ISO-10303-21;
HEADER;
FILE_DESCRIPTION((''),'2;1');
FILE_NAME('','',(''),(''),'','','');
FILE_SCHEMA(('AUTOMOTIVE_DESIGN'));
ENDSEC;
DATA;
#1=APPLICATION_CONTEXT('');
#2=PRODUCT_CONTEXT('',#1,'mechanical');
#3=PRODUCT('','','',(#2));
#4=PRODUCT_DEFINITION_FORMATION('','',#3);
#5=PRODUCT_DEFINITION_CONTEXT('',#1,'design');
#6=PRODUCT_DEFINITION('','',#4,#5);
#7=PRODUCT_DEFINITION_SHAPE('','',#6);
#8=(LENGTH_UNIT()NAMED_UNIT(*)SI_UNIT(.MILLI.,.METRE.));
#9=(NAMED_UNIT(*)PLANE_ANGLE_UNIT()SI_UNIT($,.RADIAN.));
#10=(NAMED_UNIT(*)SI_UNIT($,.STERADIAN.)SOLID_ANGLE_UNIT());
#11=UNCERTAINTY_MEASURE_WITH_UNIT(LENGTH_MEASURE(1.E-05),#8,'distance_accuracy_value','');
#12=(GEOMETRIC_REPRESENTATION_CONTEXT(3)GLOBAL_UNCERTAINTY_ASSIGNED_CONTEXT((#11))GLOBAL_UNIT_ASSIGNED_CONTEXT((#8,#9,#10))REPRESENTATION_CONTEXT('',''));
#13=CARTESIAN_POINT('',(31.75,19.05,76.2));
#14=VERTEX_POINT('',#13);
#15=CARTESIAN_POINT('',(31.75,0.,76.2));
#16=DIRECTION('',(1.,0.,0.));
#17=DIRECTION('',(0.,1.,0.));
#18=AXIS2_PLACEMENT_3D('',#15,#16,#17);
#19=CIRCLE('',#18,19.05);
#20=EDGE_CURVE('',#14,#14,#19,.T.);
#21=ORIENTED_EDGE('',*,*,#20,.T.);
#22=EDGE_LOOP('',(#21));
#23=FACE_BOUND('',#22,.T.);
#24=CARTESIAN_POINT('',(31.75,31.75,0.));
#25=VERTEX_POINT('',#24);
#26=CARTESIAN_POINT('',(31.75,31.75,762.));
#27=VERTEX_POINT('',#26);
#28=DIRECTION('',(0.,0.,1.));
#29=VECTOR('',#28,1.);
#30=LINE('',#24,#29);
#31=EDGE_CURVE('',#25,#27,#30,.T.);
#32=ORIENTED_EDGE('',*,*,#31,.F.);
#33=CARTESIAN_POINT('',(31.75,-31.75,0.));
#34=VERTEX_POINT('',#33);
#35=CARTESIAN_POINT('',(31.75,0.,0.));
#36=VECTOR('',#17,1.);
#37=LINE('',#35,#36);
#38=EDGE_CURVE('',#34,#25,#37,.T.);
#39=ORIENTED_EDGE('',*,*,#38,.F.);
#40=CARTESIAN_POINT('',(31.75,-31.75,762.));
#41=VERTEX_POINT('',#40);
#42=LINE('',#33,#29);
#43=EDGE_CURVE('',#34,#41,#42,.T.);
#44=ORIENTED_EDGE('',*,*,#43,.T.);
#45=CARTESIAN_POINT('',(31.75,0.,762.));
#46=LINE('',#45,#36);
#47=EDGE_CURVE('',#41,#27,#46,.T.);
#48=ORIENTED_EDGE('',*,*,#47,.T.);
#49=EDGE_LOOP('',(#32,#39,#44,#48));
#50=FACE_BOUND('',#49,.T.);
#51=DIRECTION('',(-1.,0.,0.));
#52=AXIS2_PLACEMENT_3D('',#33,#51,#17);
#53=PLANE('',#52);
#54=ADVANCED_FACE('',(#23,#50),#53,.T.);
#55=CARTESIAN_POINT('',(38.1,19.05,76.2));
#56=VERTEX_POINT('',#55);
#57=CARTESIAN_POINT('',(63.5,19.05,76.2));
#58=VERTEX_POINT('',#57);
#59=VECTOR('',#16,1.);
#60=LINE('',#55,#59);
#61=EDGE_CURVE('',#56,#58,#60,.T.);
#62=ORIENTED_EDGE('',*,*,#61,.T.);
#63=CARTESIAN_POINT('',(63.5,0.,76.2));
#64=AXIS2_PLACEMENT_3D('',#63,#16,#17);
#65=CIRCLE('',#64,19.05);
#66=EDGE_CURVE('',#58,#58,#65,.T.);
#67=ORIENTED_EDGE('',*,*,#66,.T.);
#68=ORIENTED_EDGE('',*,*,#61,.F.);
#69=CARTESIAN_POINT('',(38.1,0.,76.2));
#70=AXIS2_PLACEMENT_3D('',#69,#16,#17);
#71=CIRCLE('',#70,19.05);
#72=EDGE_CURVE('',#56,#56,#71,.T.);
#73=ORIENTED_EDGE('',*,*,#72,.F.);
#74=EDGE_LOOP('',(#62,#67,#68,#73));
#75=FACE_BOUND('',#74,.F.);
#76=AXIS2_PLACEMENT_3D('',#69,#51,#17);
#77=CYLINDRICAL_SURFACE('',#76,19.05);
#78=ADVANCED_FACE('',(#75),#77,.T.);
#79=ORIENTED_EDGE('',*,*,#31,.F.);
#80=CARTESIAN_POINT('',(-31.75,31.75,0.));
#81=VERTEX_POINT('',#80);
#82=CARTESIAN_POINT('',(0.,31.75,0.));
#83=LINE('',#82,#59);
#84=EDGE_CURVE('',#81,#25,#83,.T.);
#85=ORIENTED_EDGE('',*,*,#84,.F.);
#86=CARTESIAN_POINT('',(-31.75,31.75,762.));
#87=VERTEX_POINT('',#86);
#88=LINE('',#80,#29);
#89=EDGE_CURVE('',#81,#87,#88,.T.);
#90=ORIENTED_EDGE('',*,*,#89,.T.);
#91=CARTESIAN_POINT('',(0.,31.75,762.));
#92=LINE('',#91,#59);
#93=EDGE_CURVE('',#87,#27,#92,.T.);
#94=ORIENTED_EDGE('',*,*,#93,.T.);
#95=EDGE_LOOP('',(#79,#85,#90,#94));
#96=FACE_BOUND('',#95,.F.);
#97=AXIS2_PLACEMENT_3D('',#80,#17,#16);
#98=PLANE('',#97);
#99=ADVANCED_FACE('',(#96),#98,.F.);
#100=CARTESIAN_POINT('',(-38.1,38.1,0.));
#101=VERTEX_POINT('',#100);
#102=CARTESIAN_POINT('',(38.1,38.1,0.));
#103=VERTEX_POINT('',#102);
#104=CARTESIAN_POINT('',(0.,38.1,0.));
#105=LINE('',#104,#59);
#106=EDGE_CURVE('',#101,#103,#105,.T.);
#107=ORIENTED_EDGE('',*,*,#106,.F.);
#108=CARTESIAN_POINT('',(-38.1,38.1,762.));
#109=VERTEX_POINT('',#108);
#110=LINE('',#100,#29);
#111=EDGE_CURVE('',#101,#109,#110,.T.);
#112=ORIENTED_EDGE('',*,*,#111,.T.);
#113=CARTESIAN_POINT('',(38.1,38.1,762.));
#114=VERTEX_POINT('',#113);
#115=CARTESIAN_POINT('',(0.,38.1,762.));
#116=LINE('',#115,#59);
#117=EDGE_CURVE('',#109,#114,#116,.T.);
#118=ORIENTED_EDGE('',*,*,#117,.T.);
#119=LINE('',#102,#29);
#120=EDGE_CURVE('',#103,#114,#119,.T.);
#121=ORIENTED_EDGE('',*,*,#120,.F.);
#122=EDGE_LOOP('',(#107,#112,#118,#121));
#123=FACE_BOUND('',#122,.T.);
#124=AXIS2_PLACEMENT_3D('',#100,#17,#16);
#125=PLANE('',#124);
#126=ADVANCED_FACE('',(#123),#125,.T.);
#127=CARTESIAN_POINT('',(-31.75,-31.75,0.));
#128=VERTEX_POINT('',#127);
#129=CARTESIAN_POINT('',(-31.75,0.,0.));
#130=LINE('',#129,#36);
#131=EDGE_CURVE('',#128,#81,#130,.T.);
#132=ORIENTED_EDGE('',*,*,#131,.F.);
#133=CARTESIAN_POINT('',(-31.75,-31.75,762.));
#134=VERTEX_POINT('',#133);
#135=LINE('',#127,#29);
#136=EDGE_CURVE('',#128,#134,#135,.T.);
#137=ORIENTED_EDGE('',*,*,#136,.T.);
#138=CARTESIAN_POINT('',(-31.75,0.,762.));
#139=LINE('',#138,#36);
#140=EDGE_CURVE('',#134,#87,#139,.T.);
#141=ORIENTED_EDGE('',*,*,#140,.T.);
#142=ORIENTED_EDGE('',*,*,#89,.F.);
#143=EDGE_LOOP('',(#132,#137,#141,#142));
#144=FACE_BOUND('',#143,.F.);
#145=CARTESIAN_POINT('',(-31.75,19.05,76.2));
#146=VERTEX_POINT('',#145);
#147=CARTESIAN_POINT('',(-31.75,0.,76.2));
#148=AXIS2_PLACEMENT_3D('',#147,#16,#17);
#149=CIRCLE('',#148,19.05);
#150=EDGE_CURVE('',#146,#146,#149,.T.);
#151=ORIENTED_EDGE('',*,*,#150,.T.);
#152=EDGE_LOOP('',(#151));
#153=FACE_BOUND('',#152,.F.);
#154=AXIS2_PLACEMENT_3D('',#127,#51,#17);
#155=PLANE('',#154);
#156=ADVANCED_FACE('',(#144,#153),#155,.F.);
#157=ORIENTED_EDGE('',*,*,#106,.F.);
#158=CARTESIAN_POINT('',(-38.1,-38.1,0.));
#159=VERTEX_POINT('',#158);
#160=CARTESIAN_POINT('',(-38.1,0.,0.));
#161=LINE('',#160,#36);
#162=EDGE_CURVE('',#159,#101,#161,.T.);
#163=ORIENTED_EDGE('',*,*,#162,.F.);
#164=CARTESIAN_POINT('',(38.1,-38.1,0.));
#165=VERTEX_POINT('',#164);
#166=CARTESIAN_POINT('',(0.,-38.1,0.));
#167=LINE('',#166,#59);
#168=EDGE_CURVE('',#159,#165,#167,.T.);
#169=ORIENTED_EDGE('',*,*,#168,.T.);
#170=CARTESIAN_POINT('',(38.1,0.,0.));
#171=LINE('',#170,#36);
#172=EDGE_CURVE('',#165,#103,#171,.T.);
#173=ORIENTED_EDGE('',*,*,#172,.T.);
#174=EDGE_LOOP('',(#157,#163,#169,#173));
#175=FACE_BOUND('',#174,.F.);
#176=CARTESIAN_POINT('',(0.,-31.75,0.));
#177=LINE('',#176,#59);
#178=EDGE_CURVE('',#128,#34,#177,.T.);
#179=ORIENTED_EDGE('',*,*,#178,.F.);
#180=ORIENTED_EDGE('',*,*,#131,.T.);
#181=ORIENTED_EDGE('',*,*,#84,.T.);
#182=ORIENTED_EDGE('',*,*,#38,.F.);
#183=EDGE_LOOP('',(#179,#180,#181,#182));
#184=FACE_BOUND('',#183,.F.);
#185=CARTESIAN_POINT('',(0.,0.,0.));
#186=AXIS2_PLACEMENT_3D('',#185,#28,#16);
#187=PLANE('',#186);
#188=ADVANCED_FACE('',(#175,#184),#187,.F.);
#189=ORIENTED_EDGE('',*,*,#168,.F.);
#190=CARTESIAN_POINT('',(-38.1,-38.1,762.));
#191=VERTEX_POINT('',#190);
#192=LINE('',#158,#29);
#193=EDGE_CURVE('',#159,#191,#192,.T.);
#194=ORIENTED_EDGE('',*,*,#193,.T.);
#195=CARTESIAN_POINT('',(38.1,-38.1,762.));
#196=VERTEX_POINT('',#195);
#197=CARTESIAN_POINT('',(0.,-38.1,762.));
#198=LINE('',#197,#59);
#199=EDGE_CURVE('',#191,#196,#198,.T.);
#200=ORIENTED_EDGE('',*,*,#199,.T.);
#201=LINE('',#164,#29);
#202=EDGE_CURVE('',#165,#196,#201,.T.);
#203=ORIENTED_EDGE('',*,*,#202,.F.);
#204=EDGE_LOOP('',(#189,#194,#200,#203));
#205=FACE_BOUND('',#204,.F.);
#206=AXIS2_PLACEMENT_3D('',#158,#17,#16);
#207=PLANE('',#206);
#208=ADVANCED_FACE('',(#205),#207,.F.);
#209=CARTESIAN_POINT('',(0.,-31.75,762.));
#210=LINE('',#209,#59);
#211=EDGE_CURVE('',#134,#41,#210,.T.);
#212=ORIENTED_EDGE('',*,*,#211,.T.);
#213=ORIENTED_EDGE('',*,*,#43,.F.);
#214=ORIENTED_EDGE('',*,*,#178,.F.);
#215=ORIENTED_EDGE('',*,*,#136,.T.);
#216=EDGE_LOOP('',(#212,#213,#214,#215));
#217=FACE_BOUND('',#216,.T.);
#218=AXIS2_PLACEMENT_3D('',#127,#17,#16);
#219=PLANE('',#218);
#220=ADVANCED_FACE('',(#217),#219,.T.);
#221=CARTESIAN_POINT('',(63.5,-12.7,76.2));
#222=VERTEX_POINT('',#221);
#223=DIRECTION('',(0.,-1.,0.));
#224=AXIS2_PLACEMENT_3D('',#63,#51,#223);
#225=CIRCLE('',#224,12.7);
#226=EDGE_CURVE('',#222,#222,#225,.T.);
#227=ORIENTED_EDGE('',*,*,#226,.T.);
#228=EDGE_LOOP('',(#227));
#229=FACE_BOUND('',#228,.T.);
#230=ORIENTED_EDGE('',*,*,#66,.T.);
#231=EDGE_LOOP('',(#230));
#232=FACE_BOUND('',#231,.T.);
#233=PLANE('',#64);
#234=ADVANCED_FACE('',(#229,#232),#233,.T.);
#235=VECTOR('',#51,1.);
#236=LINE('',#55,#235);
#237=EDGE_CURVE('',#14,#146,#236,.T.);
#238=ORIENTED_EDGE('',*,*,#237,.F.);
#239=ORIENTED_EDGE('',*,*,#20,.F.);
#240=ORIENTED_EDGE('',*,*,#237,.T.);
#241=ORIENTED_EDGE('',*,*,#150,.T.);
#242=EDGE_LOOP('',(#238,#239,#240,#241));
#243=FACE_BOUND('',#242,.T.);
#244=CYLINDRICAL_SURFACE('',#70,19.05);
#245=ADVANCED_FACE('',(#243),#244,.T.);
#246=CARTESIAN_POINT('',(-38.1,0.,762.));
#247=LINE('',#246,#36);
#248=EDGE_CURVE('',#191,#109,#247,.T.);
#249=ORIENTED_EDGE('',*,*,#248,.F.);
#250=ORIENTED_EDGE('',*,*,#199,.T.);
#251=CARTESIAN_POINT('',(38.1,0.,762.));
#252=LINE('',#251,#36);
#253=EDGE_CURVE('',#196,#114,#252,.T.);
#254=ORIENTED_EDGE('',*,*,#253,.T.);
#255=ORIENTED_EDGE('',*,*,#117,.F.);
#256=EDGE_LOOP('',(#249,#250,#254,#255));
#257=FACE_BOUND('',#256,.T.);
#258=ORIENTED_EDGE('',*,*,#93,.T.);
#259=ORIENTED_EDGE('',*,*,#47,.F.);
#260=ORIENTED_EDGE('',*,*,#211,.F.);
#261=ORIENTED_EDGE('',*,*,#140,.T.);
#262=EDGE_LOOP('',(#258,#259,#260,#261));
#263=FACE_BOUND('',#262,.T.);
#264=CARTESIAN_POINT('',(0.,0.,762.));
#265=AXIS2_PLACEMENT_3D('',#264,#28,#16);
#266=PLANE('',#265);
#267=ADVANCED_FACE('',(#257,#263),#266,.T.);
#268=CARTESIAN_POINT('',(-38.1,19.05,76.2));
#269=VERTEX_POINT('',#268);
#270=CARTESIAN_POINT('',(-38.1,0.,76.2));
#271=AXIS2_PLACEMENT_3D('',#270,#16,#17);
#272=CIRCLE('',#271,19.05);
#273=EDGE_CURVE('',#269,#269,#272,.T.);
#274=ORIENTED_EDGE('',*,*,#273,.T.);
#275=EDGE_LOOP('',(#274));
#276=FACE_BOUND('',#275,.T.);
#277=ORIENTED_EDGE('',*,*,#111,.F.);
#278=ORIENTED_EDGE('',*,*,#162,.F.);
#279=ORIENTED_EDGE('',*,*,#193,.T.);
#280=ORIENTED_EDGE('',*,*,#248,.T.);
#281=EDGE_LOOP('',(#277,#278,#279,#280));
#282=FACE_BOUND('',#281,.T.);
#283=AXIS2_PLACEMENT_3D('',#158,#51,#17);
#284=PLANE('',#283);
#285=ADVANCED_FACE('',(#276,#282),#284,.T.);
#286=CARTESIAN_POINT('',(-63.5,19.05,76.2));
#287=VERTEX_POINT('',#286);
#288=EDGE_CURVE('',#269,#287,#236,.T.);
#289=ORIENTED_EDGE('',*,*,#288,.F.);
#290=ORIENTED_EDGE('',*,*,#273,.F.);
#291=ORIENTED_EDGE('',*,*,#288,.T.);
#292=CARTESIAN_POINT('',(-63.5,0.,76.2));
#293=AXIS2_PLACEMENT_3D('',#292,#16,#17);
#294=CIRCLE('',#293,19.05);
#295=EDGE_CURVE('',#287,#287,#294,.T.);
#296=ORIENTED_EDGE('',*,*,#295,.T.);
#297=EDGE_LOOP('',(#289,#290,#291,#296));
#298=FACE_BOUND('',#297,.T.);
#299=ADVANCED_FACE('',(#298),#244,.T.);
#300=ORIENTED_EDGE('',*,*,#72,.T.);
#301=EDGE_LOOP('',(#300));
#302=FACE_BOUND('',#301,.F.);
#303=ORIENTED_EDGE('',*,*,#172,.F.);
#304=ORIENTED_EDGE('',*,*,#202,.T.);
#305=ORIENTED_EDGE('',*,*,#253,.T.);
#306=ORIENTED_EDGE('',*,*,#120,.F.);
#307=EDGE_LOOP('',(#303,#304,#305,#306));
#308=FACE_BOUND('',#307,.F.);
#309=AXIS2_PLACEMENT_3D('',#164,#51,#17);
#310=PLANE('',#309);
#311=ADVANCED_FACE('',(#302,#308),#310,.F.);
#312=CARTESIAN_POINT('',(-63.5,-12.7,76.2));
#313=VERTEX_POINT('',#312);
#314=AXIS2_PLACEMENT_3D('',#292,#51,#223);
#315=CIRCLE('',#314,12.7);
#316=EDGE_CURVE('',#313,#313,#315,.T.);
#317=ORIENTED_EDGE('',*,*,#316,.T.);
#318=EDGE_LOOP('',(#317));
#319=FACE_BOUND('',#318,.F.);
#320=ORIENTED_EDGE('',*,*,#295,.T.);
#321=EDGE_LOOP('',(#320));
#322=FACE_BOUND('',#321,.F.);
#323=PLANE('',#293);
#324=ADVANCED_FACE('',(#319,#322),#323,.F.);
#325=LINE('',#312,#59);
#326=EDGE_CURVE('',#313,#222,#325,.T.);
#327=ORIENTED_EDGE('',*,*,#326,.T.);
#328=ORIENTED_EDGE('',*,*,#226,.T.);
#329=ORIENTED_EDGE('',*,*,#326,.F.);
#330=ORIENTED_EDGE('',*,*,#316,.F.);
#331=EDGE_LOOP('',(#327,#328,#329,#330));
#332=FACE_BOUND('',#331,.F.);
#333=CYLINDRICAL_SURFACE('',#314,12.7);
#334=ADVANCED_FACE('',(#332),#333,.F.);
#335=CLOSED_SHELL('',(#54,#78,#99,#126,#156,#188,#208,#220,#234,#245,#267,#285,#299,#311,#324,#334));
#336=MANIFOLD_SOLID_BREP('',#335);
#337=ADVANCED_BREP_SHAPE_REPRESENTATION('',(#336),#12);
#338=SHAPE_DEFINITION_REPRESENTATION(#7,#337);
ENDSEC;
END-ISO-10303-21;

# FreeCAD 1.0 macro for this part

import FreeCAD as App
import Part
import Sketcher
from FreeCAD import Vector
Q = App.Units.Quantity


def add_polygon(sketch, points):
    """Adds a closed chain of lines whose ends are joined by coincident constraints."""
    first, n = sketch.GeometryCount, len(points)
    for a, b in zip(points, points[1:] + points[:1]):
        sketch.addGeometry(Part.LineSegment(App.Vector(*a, 0), App.Vector(*b, 0)), False)
    for i in range(n):
        sketch.addConstraint(Sketcher.Constraint("Coincident", first + i, 2, first + (i + 1) % n, 1))

doc = App.newDocument("Part")
params = doc.addObject("Spreadsheet::Sheet", "Params")
for row, (alias, value) in enumerate([
    ("sketch1_width", "3 in"),
    ("sketch1_width2", "2.5 in"),
    ("pad1_length", "30 in"),
    ("sketch2_diameter", "1.5 in"),
    ("pad2_length", "1 in"),
    ("pad2_length2", "4 in"),
    ("sketch3_diameter", "1 in"),
], start=1):
    params.set(f"A{row}", alias)
    params.set(f"B{row}", "=" + value)
    params.setAlias(f"B{row}", alias)

body = doc.addObject("PartDesign::Body", "Body")

sketch1 = body.newObject("Sketcher::SketchObject", "Sketch")
sketch1.AttachmentSupport = (doc.getObject("XY_Plane"), [""])
sketch1.MapMode = "FlatFace"
add_polygon(sketch1, [(-38.1, 38.1), (-38.1, -38.1), (38.1, -38.1), (38.1, 38.1)])
add_polygon(sketch1, [(31.75, -31.75), (-31.75, -31.75), (-31.75, 31.75), (31.75, 31.75)])
sketch1.addConstraint(Sketcher.Constraint("Vertical", 0))
sketch1.addConstraint(Sketcher.Constraint("Horizontal", 1))
sketch1.addConstraint(Sketcher.Constraint("Vertical", 2))
sketch1.addConstraint(Sketcher.Constraint("Horizontal", 3))
sketch1.addConstraint(Sketcher.Constraint("Horizontal", 4))
sketch1.addConstraint(Sketcher.Constraint("Vertical", 5))
sketch1.addConstraint(Sketcher.Constraint("Horizontal", 6))
sketch1.addConstraint(Sketcher.Constraint("Vertical", 7))
sketch1.addConstraint(Sketcher.Constraint("Symmetric", 0, 2, 2, 2, -1, 1))
sketch1.addConstraint(Sketcher.Constraint("Symmetric", 4, 2, 6, 2, -1, 1))
sketch1.addConstraint(Sketcher.Constraint("Equal", 3, 0))
sketch1.addConstraint(Sketcher.Constraint("Equal", 6, 5))
sketch1.addConstraint(Sketcher.Constraint("DistanceX", 1, 1, 1, 2, Q("3 in")))
sketch1.addConstraint(Sketcher.Constraint("DistanceX", 4, 2, 4, 1, Q("2.5 in")))
sketch1.setExpression("Constraints[20]", "Params.sketch1_width")
sketch1.setExpression("Constraints[21]", "Params.sketch1_width2")
pad1 = body.newObject("PartDesign::Pad", "Pad")
pad1.Profile = sketch1
pad1.setExpression("Length", "Params.pad1_length")

sketch2 = body.newObject("Sketcher::SketchObject", "Sketch001")
sketch2.AttachmentSupport = (doc.getObject("YZ_Plane"), [""])
sketch2.MapMode = "FlatFace"
sketch2.AttachmentOffset = App.Placement(Vector(0, 0, 1.5 * 25.4), App.Rotation())
sketch2.addGeometry(Part.Circle(Vector(0, 76.2, 0), Vector(0, 0, 1), 19.05), False)
sketch2.addConstraint(Sketcher.Constraint("PointOnObject", 0, 3, -2))
sketch2.addConstraint(Sketcher.Constraint("Diameter", 0, Q("1.5 in")))
sketch2.addConstraint(Sketcher.Constraint("DistanceY", -1, 1, 0, 3, Q("3 in")))
sketch2.setExpression("Constraints[1]", "Params.sketch2_diameter")
pad2 = body.newObject("PartDesign::Pad", "Pad001")
pad2.Profile = sketch2
pad2.Type = "TwoLengths"
pad2.setExpression("Length", "Params.pad2_length")
pad2.setExpression("Length2", "Params.pad2_length2")

sketch3 = body.newObject("Sketcher::SketchObject", "Sketch002")
sketch3.AttachmentSupport = (doc.getObject("YZ_Plane"), [""])
sketch3.MapMode = "FlatFace"
sketch3.AttachmentOffset = App.Placement(Vector(0, 0, -2.5 * 25.4), App.Rotation())
sketch3.addGeometry(Part.Circle(Vector(0, 76.2, 0), Vector(0, 0, 1), 12.7), False)
sketch3.addConstraint(Sketcher.Constraint("PointOnObject", 0, 3, -2))
sketch3.addConstraint(Sketcher.Constraint("Diameter", 0, Q("1 in")))
sketch3.addConstraint(Sketcher.Constraint("DistanceY", -1, 1, 0, 3, Q("3 in")))
sketch3.setExpression("Constraints[1]", "Params.sketch3_diameter")
pocket1 = body.newObject("PartDesign::Pocket", "Pocket")
pocket1.Profile = sketch3
pocket1.Type = "ThroughAll"
pocket1.Reversed = True

doc.recompute()
